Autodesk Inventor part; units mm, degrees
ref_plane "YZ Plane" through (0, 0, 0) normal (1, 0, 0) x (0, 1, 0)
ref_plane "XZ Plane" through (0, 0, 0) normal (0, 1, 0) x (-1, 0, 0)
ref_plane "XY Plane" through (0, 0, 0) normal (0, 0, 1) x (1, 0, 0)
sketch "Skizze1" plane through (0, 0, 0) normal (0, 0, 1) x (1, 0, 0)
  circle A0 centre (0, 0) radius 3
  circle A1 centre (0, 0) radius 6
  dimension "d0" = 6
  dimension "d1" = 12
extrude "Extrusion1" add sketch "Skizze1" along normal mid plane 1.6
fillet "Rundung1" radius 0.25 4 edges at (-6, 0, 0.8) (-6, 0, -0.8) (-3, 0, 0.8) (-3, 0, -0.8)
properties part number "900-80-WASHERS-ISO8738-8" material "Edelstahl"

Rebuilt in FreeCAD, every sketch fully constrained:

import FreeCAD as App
import Part
import Sketcher
from FreeCAD import Vector
Q = App.Units.Quantity


def edges_at(feature, points):
    """Names of the edges that pass closest to the given points."""
    edges = feature.Shape.Edges
    near = lambda p: min(range(len(edges)), key=lambda i: edges[i].distToShape(Part.Vertex(*p))[0])
    return sorted({f"Edge{near(p) + 1}" for p in points})

doc = App.newDocument("Part")
body = doc.addObject("PartDesign::Body", "Body")

sketch1 = doc.addObject("Sketcher::SketchObject", "Sketch")
body.addObject(sketch1)
sketch1.AttachmentSupport = (doc.XY_Plane, [""])
sketch1.MapMode = "FlatFace"
sketch1.addGeometry(Part.Circle(Vector(0, 0, 0), Vector(0, 0, 1), 6), False)
sketch1.addGeometry(Part.Circle(Vector(0, 0, 0), Vector(0, 0, 1), 3), False)
sketch1.addConstraint(Sketcher.Constraint("Coincident", 0, 3, -1, 1))
sketch1.addConstraint(Sketcher.Constraint("Coincident", 1, 3, -1, 1))
sketch1.addConstraint(Sketcher.Constraint("Diameter", 0, Q("12 mm")))
sketch1.addConstraint(Sketcher.Constraint("Diameter", 1, Q("6 mm")))
pad1 = doc.addObject("PartDesign::Pad", "Pad")
body.addObject(pad1)
pad1.Profile = sketch1
pad1.Length = 1.6
pad1.Midplane = True
doc.recompute()

fillet = doc.addObject("PartDesign::Fillet", "Fillet")
body.addObject(fillet)
fillet.Base = (pad1, edges_at(pad1, [
    (-6, 0, 0.8),
    (-6, 0, -0.8),
    (-3, 0, 0.8),
    (-3, 0, -0.8),
]))
fillet.Radius = 0.25

doc.recompute()
